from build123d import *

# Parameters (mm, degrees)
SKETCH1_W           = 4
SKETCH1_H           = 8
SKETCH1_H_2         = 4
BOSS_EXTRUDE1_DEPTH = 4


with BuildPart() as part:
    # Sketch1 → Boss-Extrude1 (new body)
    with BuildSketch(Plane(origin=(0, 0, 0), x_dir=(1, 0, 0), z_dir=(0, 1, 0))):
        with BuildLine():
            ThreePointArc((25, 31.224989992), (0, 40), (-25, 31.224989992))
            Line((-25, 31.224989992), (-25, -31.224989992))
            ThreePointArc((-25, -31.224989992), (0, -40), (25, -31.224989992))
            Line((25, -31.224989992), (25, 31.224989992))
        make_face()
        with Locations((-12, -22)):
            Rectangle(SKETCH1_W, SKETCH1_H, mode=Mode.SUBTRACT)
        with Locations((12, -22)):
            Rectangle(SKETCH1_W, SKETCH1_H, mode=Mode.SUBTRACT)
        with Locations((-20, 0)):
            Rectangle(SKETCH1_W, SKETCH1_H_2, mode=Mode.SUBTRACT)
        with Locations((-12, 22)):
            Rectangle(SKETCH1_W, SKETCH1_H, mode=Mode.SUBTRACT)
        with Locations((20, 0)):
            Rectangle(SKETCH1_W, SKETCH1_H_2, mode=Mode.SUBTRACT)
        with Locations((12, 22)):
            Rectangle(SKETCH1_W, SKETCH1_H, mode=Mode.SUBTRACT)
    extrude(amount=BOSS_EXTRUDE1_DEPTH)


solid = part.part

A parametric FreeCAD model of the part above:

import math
import FreeCAD as App
import Part
import Sketcher
Q = App.Units.Quantity


def add_polygon(sketch, points):
    """Adds a closed chain of lines whose ends are joined by coincident constraints."""
    first, n = sketch.GeometryCount, len(points)
    for a, b in zip(points, points[1:] + points[:1]):
        sketch.addGeometry(Part.LineSegment(App.Vector(*a, 0), App.Vector(*b, 0)), False)
    for i in range(n):
        sketch.addConstraint(Sketcher.Constraint("Coincident", first + i, 2, first + (i + 1) % n, 1))

doc = App.newDocument("Part")
body = doc.addObject("PartDesign::Body", "Body")

# Sketch on XZ plane
sketch1 = doc.addObject("Sketcher::SketchObject", "Sketch")
body.addObject(sketch1)
sketch1.AttachmentSupport = (doc.XZ_Plane, [""])
sketch1.MapMode = "FlatFace"
sketch1.addGeometry(Part.ArcOfCircle(Part.Circle(App.Vector(0, 0, 0), App.Vector(0, 0, 1), 40), math.radians(-129), math.radians(-51)), False)  # 0
sketch1.addGeometry(Part.LineSegment(App.Vector(-25, -31.2, 0), App.Vector(-25, 31.2, 0)), False)  # 1
sketch1.addGeometry(Part.ArcOfCircle(Part.Circle(App.Vector(0, 0, 0), App.Vector(0, 0, 1), 40), math.radians(51), math.radians(129)), False)  # 2
sketch1.addGeometry(Part.LineSegment(App.Vector(25, 31.2, 0), App.Vector(25, -31.2, 0)), False)  # 3
add_polygon(sketch1, [(-10, 26), (-14, 26), (-14, 18), (-10, 18)])  # lines 4-7
add_polygon(sketch1, [(14, 26), (10, 26), (10, 18), (14, 18)])  # lines 8-11
add_polygon(sketch1, [(-18, 2), (-22, 2), (-22, -2), (-18, -2)])  # lines 12-15
add_polygon(sketch1, [(-10, -18), (-14, -18), (-14, -26), (-10, -26)])  # lines 16-19
add_polygon(sketch1, [(22, 2), (18, 2), (18, -2), (22, -2)])  # lines 20-23
add_polygon(sketch1, [(14, -18), (10, -18), (10, -26), (14, -26)])  # lines 24-27
sketch1.addConstraint([
    Sketcher.Constraint("Coincident", 0, 1, 1, 1),
    Sketcher.Constraint("Coincident", 1, 2, 2, 2),
    Sketcher.Constraint("Coincident", 2, 1, 3, 1),
    Sketcher.Constraint("Coincident", 3, 2, 0, 2),
    Sketcher.Constraint("Vertical", 1),
    Sketcher.Constraint("Vertical", 3),
    Sketcher.Constraint("Horizontal", 4),
    Sketcher.Constraint("Vertical", 5),
    Sketcher.Constraint("Horizontal", 6),
    Sketcher.Constraint("Vertical", 7),
    Sketcher.Constraint("Horizontal", 8),
    Sketcher.Constraint("Vertical", 9),
    Sketcher.Constraint("Horizontal", 10),
    Sketcher.Constraint("Vertical", 11),
    Sketcher.Constraint("Horizontal", 12),
    Sketcher.Constraint("Vertical", 13),
    Sketcher.Constraint("Horizontal", 14),
    Sketcher.Constraint("Vertical", 15),
    Sketcher.Constraint("Horizontal", 16),
    Sketcher.Constraint("Vertical", 17),
    Sketcher.Constraint("Horizontal", 18),
    Sketcher.Constraint("Vertical", 19),
    Sketcher.Constraint("Horizontal", 20),
    Sketcher.Constraint("Vertical", 21),
    Sketcher.Constraint("Horizontal", 22),
    Sketcher.Constraint("Vertical", 23),
    Sketcher.Constraint("Horizontal", 24),
    Sketcher.Constraint("Vertical", 25),
    Sketcher.Constraint("Horizontal", 26),
    Sketcher.Constraint("Vertical", 27),
    Sketcher.Constraint("Coincident", 0, 3, -1, 1),
    Sketcher.Constraint("Coincident", 2, 3, -1, 1),
    Sketcher.Constraint("Equal", 0, 2),
    Sketcher.Constraint("Symmetric", 10, 2, 16, 2, -1, 1),
    Sketcher.Constraint("Symmetric", 8, 2, 18, 2, -1, 1),
    Sketcher.Constraint("Symmetric", 14, 2, 20, 2, -1, 1),
    Sketcher.Constraint("Symmetric", 12, 2, 22, 2, -1, 1),
    Sketcher.Constraint("Symmetric", 6, 2, 24, 2, -1, 1),
    Sketcher.Constraint("Symmetric", 4, 2, 26, 2, -1, 1),
    Sketcher.Constraint("Symmetric", 7, 2, 8, 2, -2),
    Sketcher.Constraint("Symmetric", 5, 2, 10, 2, -2),
    Sketcher.Constraint("Horizontal", 1, 2, 2, 1),
    Sketcher.Constraint("Horizontal", 15, 2, 20, 2),
    Sketcher.Constraint("Equal", 10, 12),
    Sketcher.Constraint("Equal", 26, 13),
    Sketcher.Constraint("Radius", 0, Q("40 mm")),
    Sketcher.Constraint("DistanceX", 4, 2, 4, 1, Q("4 mm")),
    Sketcher.Constraint("DistanceY", 5, 2, 5, 1, Q("8 mm")),
    Sketcher.Constraint("DistanceX", 0, 1, -1, 1, Q("25 mm")),
    Sketcher.Constraint("DistanceX", 4, 2, -1, 1, Q("14 mm")),
    Sketcher.Constraint("DistanceY", -1, 1, 4, 2, Q("26 mm")),
    Sketcher.Constraint("DistanceX", 12, 2, -1, 1, Q("22 mm")),
])
pad1 = doc.addObject("PartDesign::Pad", "Pad")
body.addObject(pad1)
pad1.Profile = sketch1
pad1.Length = 4
pad1.Reversed = True

doc.recompute()
